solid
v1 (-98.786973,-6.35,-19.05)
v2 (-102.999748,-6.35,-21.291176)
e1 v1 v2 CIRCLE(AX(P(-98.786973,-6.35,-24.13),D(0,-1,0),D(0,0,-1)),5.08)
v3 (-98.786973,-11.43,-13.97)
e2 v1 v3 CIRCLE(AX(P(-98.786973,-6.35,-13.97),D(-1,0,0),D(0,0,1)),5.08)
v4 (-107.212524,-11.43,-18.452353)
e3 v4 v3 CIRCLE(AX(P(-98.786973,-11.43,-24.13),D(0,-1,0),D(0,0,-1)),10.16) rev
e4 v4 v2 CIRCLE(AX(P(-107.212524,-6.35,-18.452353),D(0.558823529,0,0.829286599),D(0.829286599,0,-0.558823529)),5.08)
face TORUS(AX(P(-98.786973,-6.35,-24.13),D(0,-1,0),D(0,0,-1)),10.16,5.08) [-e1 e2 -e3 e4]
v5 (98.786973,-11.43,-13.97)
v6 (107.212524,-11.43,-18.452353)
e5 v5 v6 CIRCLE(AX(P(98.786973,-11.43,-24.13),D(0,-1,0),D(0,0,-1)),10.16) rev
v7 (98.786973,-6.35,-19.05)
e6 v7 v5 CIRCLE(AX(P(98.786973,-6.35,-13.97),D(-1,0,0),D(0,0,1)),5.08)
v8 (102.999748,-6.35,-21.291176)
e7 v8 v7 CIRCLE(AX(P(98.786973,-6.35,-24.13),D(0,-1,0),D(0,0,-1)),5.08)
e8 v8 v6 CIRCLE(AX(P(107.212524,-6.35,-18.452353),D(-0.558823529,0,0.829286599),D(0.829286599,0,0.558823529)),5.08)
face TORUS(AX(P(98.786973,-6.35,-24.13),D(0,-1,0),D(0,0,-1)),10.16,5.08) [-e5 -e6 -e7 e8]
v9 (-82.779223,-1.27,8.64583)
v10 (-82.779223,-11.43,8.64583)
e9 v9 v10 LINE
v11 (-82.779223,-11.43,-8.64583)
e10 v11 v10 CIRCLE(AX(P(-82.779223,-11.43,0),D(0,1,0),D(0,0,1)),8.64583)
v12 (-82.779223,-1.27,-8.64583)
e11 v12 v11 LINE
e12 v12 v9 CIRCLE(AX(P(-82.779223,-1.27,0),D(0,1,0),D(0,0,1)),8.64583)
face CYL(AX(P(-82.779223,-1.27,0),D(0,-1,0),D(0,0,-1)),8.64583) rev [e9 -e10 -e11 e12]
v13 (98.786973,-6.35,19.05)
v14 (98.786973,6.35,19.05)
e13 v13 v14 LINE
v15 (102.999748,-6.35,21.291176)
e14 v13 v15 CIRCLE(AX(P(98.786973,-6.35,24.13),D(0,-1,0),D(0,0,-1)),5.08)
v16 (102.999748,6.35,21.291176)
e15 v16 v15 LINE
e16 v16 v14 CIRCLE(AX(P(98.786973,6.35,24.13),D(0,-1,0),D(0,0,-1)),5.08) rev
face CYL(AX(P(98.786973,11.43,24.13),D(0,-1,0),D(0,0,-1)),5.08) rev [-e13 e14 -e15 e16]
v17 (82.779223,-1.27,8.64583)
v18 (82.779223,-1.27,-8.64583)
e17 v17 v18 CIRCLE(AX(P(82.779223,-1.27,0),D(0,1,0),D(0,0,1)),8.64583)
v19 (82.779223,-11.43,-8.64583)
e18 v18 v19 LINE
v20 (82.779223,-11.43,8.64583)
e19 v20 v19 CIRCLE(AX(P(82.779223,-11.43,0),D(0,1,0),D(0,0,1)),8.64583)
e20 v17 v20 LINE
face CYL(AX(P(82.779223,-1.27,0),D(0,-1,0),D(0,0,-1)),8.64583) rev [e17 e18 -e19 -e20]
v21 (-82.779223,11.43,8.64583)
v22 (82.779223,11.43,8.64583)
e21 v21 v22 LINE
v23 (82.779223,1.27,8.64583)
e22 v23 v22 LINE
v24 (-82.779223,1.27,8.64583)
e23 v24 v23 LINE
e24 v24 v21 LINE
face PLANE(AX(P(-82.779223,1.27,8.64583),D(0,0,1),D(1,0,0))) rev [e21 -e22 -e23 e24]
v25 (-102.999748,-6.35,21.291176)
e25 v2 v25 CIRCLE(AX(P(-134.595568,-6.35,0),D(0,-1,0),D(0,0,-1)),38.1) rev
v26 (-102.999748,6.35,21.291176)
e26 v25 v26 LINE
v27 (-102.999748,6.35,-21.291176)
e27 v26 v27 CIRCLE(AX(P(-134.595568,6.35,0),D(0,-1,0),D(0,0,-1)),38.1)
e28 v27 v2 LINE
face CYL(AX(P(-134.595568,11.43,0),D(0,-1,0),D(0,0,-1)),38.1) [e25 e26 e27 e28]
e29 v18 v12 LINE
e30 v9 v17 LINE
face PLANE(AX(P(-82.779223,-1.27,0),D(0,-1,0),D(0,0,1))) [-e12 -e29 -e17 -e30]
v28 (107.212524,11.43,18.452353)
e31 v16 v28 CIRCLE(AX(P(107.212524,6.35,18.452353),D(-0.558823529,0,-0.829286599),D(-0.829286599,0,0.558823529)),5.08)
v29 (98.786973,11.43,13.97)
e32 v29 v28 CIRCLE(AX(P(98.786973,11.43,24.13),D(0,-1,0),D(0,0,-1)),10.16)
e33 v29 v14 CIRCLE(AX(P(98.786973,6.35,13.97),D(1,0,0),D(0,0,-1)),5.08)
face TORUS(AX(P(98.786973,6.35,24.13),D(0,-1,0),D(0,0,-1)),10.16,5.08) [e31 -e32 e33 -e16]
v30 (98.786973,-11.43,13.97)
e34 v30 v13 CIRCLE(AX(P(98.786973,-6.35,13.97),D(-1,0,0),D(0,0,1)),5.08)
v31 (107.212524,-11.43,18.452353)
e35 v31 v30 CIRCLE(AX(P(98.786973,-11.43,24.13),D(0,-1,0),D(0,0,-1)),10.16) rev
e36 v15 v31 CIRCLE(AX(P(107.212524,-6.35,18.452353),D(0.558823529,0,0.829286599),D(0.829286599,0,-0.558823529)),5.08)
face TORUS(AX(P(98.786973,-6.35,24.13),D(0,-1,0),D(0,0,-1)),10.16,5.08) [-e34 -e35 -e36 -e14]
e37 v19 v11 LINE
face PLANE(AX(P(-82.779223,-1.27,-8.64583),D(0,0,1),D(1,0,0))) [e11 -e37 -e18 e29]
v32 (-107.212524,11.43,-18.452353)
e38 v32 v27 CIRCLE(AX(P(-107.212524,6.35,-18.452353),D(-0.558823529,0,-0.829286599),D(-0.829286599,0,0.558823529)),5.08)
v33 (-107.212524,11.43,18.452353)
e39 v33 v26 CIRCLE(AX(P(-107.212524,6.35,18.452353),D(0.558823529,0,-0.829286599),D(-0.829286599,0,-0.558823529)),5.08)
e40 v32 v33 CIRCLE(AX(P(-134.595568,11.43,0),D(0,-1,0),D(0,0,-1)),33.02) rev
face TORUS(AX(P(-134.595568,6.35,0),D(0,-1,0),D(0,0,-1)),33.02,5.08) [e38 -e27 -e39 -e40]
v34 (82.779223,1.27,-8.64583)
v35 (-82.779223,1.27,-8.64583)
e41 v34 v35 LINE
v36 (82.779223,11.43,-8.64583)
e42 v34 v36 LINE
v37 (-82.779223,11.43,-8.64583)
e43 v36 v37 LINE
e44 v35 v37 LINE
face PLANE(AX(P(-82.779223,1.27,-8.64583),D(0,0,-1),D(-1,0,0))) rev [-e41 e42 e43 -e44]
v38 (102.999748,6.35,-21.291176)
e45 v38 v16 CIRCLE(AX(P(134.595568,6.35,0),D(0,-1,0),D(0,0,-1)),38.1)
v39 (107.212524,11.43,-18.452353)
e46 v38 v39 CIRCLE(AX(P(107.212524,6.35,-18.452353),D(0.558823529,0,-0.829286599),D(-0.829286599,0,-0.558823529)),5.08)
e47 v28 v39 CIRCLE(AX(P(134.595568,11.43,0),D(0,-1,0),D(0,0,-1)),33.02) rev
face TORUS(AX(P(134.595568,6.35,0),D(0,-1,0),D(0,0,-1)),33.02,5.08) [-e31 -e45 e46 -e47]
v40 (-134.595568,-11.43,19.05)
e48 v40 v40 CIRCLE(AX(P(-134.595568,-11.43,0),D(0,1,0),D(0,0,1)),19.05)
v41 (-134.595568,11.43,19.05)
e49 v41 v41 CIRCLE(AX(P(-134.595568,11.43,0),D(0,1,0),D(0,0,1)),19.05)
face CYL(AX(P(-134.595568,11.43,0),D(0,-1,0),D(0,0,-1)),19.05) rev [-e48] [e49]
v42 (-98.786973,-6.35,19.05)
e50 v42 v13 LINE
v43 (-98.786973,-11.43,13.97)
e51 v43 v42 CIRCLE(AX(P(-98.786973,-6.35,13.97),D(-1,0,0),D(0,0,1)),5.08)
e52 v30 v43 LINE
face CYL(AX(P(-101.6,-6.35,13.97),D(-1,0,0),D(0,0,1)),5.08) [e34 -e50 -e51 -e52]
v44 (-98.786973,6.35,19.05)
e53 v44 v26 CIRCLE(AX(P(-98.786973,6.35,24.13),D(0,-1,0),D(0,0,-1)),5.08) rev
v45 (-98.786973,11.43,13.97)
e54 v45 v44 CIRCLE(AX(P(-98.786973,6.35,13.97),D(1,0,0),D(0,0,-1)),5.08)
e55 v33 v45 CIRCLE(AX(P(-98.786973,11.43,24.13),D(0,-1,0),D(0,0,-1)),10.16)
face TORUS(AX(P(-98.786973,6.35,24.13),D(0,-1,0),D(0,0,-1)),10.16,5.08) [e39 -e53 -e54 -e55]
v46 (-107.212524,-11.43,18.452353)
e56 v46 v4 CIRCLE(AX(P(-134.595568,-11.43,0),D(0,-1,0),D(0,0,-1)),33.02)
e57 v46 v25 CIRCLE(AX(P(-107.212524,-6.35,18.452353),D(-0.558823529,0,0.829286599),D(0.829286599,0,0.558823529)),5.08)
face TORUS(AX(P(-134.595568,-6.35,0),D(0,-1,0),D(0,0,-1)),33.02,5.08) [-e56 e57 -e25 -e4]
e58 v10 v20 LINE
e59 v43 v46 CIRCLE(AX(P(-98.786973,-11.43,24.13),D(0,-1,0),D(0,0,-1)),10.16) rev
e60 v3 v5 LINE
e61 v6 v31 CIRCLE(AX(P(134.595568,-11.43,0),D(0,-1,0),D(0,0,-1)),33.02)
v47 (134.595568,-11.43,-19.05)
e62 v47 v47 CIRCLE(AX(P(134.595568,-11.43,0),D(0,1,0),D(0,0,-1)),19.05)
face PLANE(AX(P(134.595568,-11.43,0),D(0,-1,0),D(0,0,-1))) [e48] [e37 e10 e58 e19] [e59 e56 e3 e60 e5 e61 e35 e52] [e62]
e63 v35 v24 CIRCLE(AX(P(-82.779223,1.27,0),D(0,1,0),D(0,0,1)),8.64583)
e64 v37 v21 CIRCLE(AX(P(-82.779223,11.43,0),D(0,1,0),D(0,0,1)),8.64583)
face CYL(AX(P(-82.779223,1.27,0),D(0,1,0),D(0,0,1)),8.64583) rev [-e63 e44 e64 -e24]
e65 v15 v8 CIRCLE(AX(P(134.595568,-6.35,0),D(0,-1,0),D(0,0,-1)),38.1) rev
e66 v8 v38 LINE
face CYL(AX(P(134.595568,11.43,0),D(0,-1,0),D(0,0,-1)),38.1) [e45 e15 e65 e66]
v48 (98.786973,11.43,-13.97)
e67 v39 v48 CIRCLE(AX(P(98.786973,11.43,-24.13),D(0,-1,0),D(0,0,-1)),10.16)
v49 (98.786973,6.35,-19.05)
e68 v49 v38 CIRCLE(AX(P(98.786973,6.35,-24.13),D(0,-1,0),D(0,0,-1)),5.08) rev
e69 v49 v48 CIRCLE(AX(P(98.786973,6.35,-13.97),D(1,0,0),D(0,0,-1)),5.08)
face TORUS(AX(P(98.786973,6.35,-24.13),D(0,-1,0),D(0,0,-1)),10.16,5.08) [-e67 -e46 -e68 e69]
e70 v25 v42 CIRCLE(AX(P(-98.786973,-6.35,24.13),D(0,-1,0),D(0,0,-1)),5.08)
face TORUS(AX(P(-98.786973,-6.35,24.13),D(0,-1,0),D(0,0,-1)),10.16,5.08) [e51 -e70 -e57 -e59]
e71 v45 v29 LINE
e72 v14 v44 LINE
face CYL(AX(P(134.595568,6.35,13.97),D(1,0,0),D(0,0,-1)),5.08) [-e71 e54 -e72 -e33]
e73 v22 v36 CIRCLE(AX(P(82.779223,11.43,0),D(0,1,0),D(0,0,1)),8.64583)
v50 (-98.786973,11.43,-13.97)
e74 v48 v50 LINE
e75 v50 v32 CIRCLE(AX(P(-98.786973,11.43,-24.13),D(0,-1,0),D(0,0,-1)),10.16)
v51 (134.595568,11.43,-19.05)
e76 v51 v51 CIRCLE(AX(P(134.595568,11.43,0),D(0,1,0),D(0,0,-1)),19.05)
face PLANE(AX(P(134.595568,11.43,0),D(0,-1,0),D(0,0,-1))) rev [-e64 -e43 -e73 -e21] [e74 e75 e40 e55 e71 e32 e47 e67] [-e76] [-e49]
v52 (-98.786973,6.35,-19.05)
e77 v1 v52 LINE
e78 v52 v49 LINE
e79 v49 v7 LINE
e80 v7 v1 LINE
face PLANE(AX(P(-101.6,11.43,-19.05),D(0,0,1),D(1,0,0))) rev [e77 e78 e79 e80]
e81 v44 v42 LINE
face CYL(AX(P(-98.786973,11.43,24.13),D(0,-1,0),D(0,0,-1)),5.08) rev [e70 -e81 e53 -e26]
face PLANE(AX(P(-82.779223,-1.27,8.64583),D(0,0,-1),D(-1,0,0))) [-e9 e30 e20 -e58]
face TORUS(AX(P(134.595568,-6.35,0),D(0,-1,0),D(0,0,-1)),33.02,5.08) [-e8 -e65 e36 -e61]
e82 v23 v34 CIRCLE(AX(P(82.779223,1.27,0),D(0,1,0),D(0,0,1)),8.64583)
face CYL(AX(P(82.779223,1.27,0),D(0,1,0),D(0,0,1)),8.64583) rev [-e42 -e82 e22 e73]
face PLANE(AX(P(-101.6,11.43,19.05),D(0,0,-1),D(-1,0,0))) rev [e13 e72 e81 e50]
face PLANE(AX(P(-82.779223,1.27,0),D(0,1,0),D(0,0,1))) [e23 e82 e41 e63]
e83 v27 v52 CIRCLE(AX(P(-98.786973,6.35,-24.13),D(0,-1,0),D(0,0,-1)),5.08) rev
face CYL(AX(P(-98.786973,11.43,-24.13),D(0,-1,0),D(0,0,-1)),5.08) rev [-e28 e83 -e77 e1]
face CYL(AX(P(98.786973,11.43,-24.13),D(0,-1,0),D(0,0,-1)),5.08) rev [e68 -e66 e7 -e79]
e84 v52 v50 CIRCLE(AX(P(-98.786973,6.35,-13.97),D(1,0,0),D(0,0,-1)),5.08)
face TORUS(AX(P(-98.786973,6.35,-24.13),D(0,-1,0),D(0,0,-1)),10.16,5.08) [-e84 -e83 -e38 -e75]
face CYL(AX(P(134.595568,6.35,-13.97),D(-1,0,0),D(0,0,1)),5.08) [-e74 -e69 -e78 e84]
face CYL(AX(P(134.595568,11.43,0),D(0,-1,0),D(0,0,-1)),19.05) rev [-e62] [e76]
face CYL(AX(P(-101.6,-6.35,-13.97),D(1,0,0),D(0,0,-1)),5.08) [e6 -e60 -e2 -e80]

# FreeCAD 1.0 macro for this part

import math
import FreeCAD as App
import Part
import Sketcher
from FreeCAD import Vector
Q = App.Units.Quantity


def edges_at(feature, points):
    """Names of the edges that pass closest to the given points."""
    edges = feature.Shape.Edges
    near = lambda p: min(range(len(edges)), key=lambda i: edges[i].distToShape(Part.Vertex(*p))[0])
    return sorted({f"Edge{near(p) + 1}" for p in points})

doc = App.newDocument("Part")
params = doc.addObject("Spreadsheet::Sheet", "Params")
for row, (alias, value) in enumerate([
    ("sketch1_diameter", "1.5 in"),
    ("sketch1_radius", "1.5 in"),
    ("sketch1_width", "8 in"),
    ("pad1_length", "0.9 in"),
    ("pocket1_length", "0.4 in"),
    ("fillet_radius", "0.2 in"),
    ("fillet2_radius", "0.2 in"),
], start=1):
    params.set(f"A{row}", alias)
    params.set(f"B{row}", "=" + value)
    params.setAlias(f"B{row}", alias)

body = doc.addObject("PartDesign::Body", "Body")

sketch1 = body.newObject("Sketcher::SketchObject", "Sketch")
sketch1.AttachmentSupport = (doc.getObject("XZ_Plane"), [""])
sketch1.MapMode = "FlatFace"
sketch1.addGeometry([
    Part.LineSegment(Vector(102, -19, 0), Vector(-102, -19, 0)),
    Part.ArcOfCircle(Part.Circle(Vector(-135, 0, 0), Vector(0, 0, 1), 38), math.radians(30), math.radians(330)),
    Part.LineSegment(Vector(-102, 19, 0), Vector(102, 19, 0)),
    Part.ArcOfCircle(Part.Circle(Vector(135, 0, 0), Vector(0, 0, 1), 38), math.radians(-150), math.radians(150)),
    Part.Circle(Vector(135, 0, 0), Vector(0, 0, 1), 19),
    Part.Circle(Vector(-135, 0, 0), Vector(0, 0, 1), 19),
], False)
sketch1.addConstraint([
    Sketcher.Constraint("Coincident", 0, 2, 1, 2),
    Sketcher.Constraint("Coincident", 1, 1, 2, 1),
    Sketcher.Constraint("Coincident", 2, 2, 3, 2),
    Sketcher.Constraint("Coincident", 3, 1, 0, 1),
    Sketcher.Constraint("Horizontal", 0),
    Sketcher.Constraint("Horizontal", 2),
    Sketcher.Constraint("Coincident", 4, 3, 3, 3),
    Sketcher.Constraint("Coincident", 5, 3, 1, 3),
    Sketcher.Constraint("Equal", 1, 3),
    Sketcher.Constraint("Equal", 4, 5),
    Sketcher.Constraint("Symmetric", 1, 3, 3, 3, -1, 1),
    Sketcher.Constraint("Symmetric", 0, 2, 1, 1, -1),
    Sketcher.Constraint("Diameter", 4, Q("1.5 in")),
    Sketcher.Constraint("Radius", 1, Q("1.5 in")),
    Sketcher.Constraint("DistanceX", 0, 2, 0, 1, Q("8 in")),
    Sketcher.Constraint("DistanceY", 0, 2, 1, 1, Q("1.5 in")),
])
sketch1.setExpression("Constraints[12]", "Params.sketch1_diameter")
sketch1.setExpression("Constraints[13]", "Params.sketch1_radius")
sketch1.setExpression("Constraints[14]", "Params.sketch1_width")
pad1 = body.newObject("PartDesign::Pad", "Pad")
pad1.Profile = sketch1
pad1.setExpression("Length", "Params.pad1_length")
pad1.Midplane = True

sketch2 = body.newObject("Sketcher::SketchObject", "Sketch001")
sketch2.AttachmentSupport = (doc.getObject("XZ_Plane"), [""])
sketch2.MapMode = "FlatFace"
sketch2.AttachmentOffset = App.Placement(Vector(0, 0, -0.45 * 25.4), App.Rotation())
sketch2.addGeometry([
    Part.LineSegment(Vector(83, -9, 0), Vector(-83, -9, 0)),
    Part.ArcOfCircle(Part.Circle(Vector(-83, 0, 0), Vector(0, 0, 1), 9), math.radians(90), math.radians(270)),
    Part.LineSegment(Vector(-83, 9, 0), Vector(83, 9, 0)),
    Part.ArcOfCircle(Part.Circle(Vector(83, 0, 0), Vector(0, 0, 1), 9), math.radians(-90), math.radians(90)),
], False)
sketch2.addConstraint([
    Sketcher.Constraint("Tangent", 0, 2, 1, 2),
    Sketcher.Constraint("Tangent", 1, 1, 2, 1),
    Sketcher.Constraint("Tangent", 2, 2, 3, 2),
    Sketcher.Constraint("Tangent", 3, 1, 0, 1),
    Sketcher.Constraint("Horizontal", 0),
    Sketcher.Constraint("Horizontal", 2),
    Sketcher.Constraint("Symmetric", 1, 3, 3, 3, -1, 1),
    Sketcher.Constraint("Radius", 1, 8.64583),
    Sketcher.Constraint("DistanceX", 0, 2, 0, 1, 165.558447),
])
pocket1 = body.newObject("PartDesign::Pocket", "Pocket")
pocket1.Profile = sketch2
pocket1.setExpression("Length", "Params.pocket1_length")
pocket1.Reversed = True
doc.recompute()

mirrored = body.newObject("PartDesign::Mirrored", "Mirrored")
mirrored.Originals = [pocket1]
mirrored.MirrorPlane = (doc.getObject("XZ_Plane"), [""])
body.Tip = mirrored
doc.recompute()

fillet = body.newObject("PartDesign::Fillet", "Fillet")
fillet.Base = (mirrored, edges_at(mirrored, [
    (101.6, 0, 19.05),
    (-101.6, 0, 19.05),
    (-101.6, 0, -19.05),
    (101.6, 0, -19.05),
]))
fillet.setExpression("Radius", "Params.fillet_radius")
doc.recompute()

fillet2 = body.newObject("PartDesign::Fillet", "Fillet001")
fillet2.Base = (fillet, edges_at(fillet, [
    (-172.696, -11.43, 0),
    (-172.696, 11.43, 0),
    (0, -11.43, -19.05),
    (0, 11.43, -19.05),
    (0, -11.43, 19.05),
    (0, 11.43, 19.05),
    (172.696, -11.43, 0),
    (172.696, 11.43, 0),
    (-101.173, -11.43, -19.645),
    (-101.173, 11.43, -19.645),
    (-101.173, -11.43, 19.645),
    (-101.173, 11.43, 19.645),
    (101.173, -11.43, 19.645),
    (101.173, 11.43, 19.645),
    (101.173, -11.43, -19.645),
    (101.173, 11.43, -19.645),
]))
fillet2.setExpression("Radius", "Params.fillet2_radius")

doc.recompute()
